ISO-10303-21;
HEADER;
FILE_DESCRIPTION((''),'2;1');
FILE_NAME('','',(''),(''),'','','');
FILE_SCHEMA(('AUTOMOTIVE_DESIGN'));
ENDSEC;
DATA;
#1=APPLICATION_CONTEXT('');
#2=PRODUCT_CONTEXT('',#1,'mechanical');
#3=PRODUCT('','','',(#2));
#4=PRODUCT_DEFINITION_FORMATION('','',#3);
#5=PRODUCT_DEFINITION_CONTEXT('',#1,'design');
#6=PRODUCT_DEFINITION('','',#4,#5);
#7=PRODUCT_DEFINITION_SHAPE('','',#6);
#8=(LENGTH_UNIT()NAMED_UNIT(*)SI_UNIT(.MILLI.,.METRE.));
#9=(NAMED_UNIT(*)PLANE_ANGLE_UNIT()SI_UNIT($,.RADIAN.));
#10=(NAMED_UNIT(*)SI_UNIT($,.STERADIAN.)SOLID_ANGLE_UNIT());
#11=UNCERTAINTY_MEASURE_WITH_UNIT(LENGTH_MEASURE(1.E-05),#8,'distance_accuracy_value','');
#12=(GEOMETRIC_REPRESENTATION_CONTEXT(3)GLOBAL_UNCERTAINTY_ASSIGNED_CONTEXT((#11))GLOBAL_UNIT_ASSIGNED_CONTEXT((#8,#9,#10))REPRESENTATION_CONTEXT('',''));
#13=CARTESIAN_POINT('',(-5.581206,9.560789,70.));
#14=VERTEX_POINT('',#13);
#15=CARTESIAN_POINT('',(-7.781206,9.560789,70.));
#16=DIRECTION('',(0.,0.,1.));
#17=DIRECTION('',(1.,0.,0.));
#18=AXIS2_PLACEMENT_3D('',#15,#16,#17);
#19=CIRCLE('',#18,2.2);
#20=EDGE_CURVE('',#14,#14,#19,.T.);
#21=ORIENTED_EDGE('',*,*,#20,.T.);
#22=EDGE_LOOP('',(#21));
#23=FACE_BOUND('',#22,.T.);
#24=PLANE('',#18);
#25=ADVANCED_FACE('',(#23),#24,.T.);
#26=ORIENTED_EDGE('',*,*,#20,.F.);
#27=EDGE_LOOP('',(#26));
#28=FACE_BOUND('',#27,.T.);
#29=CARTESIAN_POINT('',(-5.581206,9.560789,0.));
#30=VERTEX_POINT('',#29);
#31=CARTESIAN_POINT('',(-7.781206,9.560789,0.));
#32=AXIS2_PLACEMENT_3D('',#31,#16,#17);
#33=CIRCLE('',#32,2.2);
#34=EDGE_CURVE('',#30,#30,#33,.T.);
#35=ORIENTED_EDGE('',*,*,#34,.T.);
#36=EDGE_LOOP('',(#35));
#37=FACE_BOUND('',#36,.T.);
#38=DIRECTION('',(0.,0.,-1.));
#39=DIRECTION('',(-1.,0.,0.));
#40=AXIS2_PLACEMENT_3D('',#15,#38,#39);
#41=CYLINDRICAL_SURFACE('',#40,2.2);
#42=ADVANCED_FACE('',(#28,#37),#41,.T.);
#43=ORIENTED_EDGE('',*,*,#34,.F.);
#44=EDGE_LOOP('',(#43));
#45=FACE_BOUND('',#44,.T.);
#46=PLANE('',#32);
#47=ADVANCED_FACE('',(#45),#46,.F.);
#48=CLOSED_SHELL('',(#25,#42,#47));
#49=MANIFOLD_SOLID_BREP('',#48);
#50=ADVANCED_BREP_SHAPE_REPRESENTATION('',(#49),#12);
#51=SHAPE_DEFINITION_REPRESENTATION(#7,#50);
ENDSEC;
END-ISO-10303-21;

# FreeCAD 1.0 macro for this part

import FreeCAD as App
import Part
import Sketcher

V = App.Vector

doc = App.newDocument("Part")
body = doc.addObject("PartDesign::Body", "Body")

# Sketch on XY plane
sketch1 = doc.addObject("Sketcher::SketchObject", "Sketch")
body.addObject(sketch1)
sketch1.AttachmentSupport = (doc.XY_Plane, [""])
sketch1.MapMode = "FlatFace"
sketch1.addGeometry(Part.Circle(V(-7.8, 9.6, 0), V(0, 0, 1), 2.2), False)
sketch1.addConstraint([
    Sketcher.Constraint("Diameter", 0, 4.4),
    Sketcher.Constraint("DistanceY", -1, 1, 0, 3, 9.560789),
    Sketcher.Constraint("DistanceX", 0, 3, -1, 1, 7.781206),
])
pad1 = doc.addObject("PartDesign::Pad", "Pad")
body.addObject(pad1)
pad1.Profile = sketch1
pad1.Length = 70

doc.recompute()
